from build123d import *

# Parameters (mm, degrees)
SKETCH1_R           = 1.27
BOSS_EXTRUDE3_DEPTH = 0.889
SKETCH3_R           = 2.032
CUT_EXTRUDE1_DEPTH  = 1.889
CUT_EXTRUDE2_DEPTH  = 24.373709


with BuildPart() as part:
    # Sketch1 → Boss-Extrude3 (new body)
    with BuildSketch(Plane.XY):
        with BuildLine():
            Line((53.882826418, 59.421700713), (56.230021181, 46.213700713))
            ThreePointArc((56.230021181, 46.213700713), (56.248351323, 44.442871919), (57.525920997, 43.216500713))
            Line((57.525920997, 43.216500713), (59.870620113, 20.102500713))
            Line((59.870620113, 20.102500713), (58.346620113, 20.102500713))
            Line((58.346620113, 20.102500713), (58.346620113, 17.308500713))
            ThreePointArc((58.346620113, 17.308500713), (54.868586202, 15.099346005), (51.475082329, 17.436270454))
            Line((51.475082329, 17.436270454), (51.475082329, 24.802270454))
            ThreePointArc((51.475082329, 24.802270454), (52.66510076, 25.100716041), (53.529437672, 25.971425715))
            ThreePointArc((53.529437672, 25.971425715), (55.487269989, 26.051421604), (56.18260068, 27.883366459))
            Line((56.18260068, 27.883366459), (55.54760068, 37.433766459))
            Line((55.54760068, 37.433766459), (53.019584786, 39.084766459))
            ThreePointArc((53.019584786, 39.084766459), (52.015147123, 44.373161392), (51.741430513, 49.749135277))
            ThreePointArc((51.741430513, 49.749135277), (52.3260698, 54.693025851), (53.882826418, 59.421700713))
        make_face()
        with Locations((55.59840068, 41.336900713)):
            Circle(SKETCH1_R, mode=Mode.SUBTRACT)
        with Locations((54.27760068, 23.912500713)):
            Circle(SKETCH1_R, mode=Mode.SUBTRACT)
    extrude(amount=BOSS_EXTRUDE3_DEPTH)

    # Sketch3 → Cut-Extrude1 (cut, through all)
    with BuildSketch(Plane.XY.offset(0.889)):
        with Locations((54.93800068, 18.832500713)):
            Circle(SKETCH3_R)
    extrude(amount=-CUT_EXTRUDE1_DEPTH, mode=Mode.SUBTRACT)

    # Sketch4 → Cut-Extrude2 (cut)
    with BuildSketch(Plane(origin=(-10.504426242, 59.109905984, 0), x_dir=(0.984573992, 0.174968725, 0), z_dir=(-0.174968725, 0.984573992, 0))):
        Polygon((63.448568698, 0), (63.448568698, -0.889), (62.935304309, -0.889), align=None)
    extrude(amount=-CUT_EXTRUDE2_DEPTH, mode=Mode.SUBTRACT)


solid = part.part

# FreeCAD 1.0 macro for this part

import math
import FreeCAD as App
import Part
import Sketcher

V = App.Vector
Q = App.Units.Quantity

doc = App.newDocument("Part")
body = doc.addObject("PartDesign::Body", "Body")

# Sketch on XY plane
sketch1 = doc.addObject("Sketcher::SketchObject", "Sketch")
body.addObject(sketch1)
sketch1.AttachmentSupport = (doc.XY_Plane, [""])
sketch1.MapMode = "FlatFace"
sketch1.addGeometry(Part.LineSegment(V(56.230021, 46.213701, 0), V(53.882826, 59.421701, 0)), False)
sketch1.addGeometry(Part.ArcOfCircle(Part.Circle(V(76.629601, 49.312501, 0), V(0, 0, 1), 24.892), math.radians(156.038515), math.radians(178.994914)), False)
sketch1.addGeometry(Part.ArcOfCircle(Part.Circle(V(91.107601, 49.058501, 0), V(0, 0, 1), 39.372228), math.radians(178.994914), math.radians(194.674002)), False)
sketch1.addGeometry(Part.LineSegment(V(53.019585, 39.084766, 0), V(55.547601, 37.433766, 0)), False)
sketch1.addGeometry(Part.LineSegment(V(55.547601, 37.433766, 0), V(56.182601, 27.883366, 0)), False)
sketch1.addGeometry(Part.ArcOfCircle(Part.Circle(V(54.447781, 27.493901, 0), V(0, 0, 1), 1.778), math.radians(-121.097996), math.radians(12.653071)), False)
sketch1.addGeometry(Part.ArcOfCircle(Part.Circle(V(51.534401, 27.087501, 0), V(0, 0, 1), 2.286), math.radians(-91.486908), math.radians(-29.223771)), False)
sketch1.addGeometry(Part.LineSegment(V(51.475082, 24.80227, 0), V(51.475082, 17.43627, 0)), False)
sketch1.addGeometry(Part.ArcOfCircle(Part.Circle(V(54.938001, 18.832501, 0), V(0, 0, 1), 3.7338), math.radians(-158.04097), math.radians(-24.089506)), False)
sketch1.addGeometry(Part.LineSegment(V(58.34662, 17.308501, 0), V(58.34662, 20.102501, 0)), False)
sketch1.addGeometry(Part.LineSegment(V(58.34662, 20.102501, 0), V(59.87062, 20.102501, 0)), False)
sketch1.addGeometry(Part.LineSegment(V(59.87062, 20.102501, 0), V(57.525921, 43.216501, 0)), False)
sketch1.addGeometry(Part.ArcOfCircle(Part.Circle(V(58.34662, 45.350101, 0), V(0, 0, 1), 2.286), math.radians(157.803899), math.radians(248.96053)), False)
sketch1.addGeometry(Part.Circle(V(54.277601, 23.912501, 0), V(0, 0, 1), 1.27), False)
sketch1.addGeometry(Part.Circle(V(55.598401, 41.336901, 0), V(0, 0, 1), 1.27), False)
sketch1.addConstraint(Sketcher.Constraint("Coincident", 0, 2, 1, 1))
sketch1.addConstraint(Sketcher.Constraint("Tangent", 1, 2, 2, 1))
sketch1.addConstraint(Sketcher.Constraint("Coincident", 2, 2, 3, 1))
sketch1.addConstraint(Sketcher.Constraint("Coincident", 3, 2, 4, 1))
sketch1.addConstraint(Sketcher.Constraint("Coincident", 4, 2, 5, 2))
sketch1.addConstraint(Sketcher.Constraint("Coincident", 5, 1, 6, 2))
sketch1.addConstraint(Sketcher.Constraint("Coincident", 6, 1, 7, 1))
sketch1.addConstraint(Sketcher.Constraint("Coincident", 7, 2, 8, 1))
sketch1.addConstraint(Sketcher.Constraint("Coincident", 8, 2, 9, 1))
sketch1.addConstraint(Sketcher.Constraint("Coincident", 9, 2, 10, 1))
sketch1.addConstraint(Sketcher.Constraint("Coincident", 10, 2, 11, 1))
sketch1.addConstraint(Sketcher.Constraint("Coincident", 11, 2, 12, 2))
sketch1.addConstraint(Sketcher.Constraint("Coincident", 12, 1, 0, 1))
sketch1.addConstraint(Sketcher.Constraint("Vertical", 7))
sketch1.addConstraint(Sketcher.Constraint("Vertical", 9))
sketch1.addConstraint(Sketcher.Constraint("Horizontal", 10))
sketch1.addConstraint(Sketcher.Constraint("Equal", 6, 12))
sketch1.addConstraint(Sketcher.Constraint("Equal", 13, 14))
sketch1.addConstraint(Sketcher.Constraint("Vertical", 12, 3, 8, 2))
sketch1.addConstraint(Sketcher.Constraint("Diameter", 13, Q("0.1 in")))
sketch1.addConstraint(Sketcher.Constraint("Radius", 1, Q("0.98 in")))
sketch1.addConstraint(Sketcher.Constraint("Radius", 5, Q("0.07 in")))
sketch1.addConstraint(Sketcher.Constraint("Radius", 6, Q("0.09 in")))
sketch1.addConstraint(Sketcher.Constraint("Radius", 8, Q("0.147 in")))
sketch1.addConstraint(Sketcher.Constraint("DistanceY", 13, 3, 1, 3, Q("1 in")))
sketch1.addConstraint(Sketcher.Constraint("DistanceX", 10, 1, 10, 2, Q("0.06 in")))
sketch1.addConstraint(Sketcher.Constraint("DistanceY", 7, 2, 7, 1, Q("0.29 in")))
sketch1.addConstraint(Sketcher.Constraint("DistanceY", 9, 1, 9, 2, Q("0.11 in")))
sketch1.addConstraint(Sketcher.Constraint("DistanceY", 8, 3, 1, 3, Q("1.2 in")))
sketch1.addConstraint(Sketcher.Constraint("DistanceX", 1, 3, 2, 3, Q("0.57 in")))
sketch1.addConstraint(Sketcher.Constraint("DistanceY", 2, 3, 1, 3, Q("0.01 in")))
sketch1.addConstraint(Sketcher.Constraint("DistanceX", 13, 3, 1, 3, Q("0.88 in")))
sketch1.addConstraint(Sketcher.Constraint("DistanceX", 6, 3, 14, 3, Q("0.16 in")))
sketch1.addConstraint(Sketcher.Constraint("DistanceY", 8, 2, 8, 3, Q("0.06 in")))
sketch1.addConstraint(Sketcher.Constraint("DistanceY", 5, 3, 1, 3, Q("0.859 in")))
sketch1.addConstraint(Sketcher.Constraint("DistanceY", 6, 3, 5, 3, Q("0.016 in")))
sketch1.addConstraint(Sketcher.Constraint("DistanceX", 6, 3, 1, 3, Q("0.988 in")))
sketch1.addConstraint(Sketcher.Constraint("DistanceX", 6, 3, 8, 3, Q("0.134 in")))
sketch1.addConstraint(Sketcher.Constraint("DistanceY", 5, 3, 12, 3, Q("0.703 in")))
sketch1.addConstraint(Sketcher.Constraint("DistanceY", 14, 3, 12, 3, Q("0.158 in")))
sketch1.addConstraint(Sketcher.Constraint("DistanceY", 12, 3, 0, 2, Q("0.554 in")))
sketch1.addConstraint(Sketcher.Constraint("DistanceY", 3, 2, 2, 2, Q("0.065 in")))
sketch1.addConstraint(Sketcher.Constraint("DistanceX", 3, 2, 14, 3, Q("0.002 in")))
sketch1.addConstraint(Sketcher.Constraint("DistanceX", 13, 3, 4, 2, Q("0.075 in")))
sketch1.addConstraint(Sketcher.Constraint("DistanceY", 4, 2, 3, 2, Q("0.376 in")))
sketch1.addConstraint(Sketcher.Constraint("DistanceY", 11, 2, 12, 3, Q("0.084 in")))
sketch1.addConstraint(Sketcher.Constraint("DistanceY", 12, 3, 12, 1, Q("0.034 in")))
sketch1.addConstraint(Sketcher.Constraint("DistanceX", -1, 1, 11, 2, Q("2.2648 in")))
sketch1.addConstraint(Sketcher.Constraint("DistanceX", 5, 3, 1, 3, Q("0.8733 in")))
sketch1.addConstraint(Sketcher.Constraint("DistanceY", -1, 1, 1, 3, Q("49.312501 mm")))
pad1 = doc.addObject("PartDesign::Pad", "Pad")
body.addObject(pad1)
pad1.Profile = sketch1
pad1.Length = Q("0.035 in")

# Sketch on XY plane
sketch2 = doc.addObject("Sketcher::SketchObject", "Sketch001")
body.addObject(sketch2)
sketch2.AttachmentSupport = (doc.XY_Plane, [""])
sketch2.MapMode = "FlatFace"
sketch2.AttachmentOffset = App.Placement(V(0, 0, 0.035 * 25.4), App.Rotation())
sketch2.addGeometry(Part.Circle(V(54.938001, 18.832501, 0), V(0, 0, 1), 2.032), False)
sketch2.addConstraint(Sketcher.Constraint("Diameter", 0, Q("0.16 in")))
sketch2.addConstraint(Sketcher.Constraint("DistanceX", -1, 1, 0, 3, Q("54.938001 mm")))
sketch2.addConstraint(Sketcher.Constraint("DistanceY", -1, 1, 0, 3, Q("18.832501 mm")))
pocket1 = doc.addObject("PartDesign::Pocket", "Pocket")
body.addObject(pocket1)
pocket1.Profile = sketch2
pocket1.Type = "ThroughAll"

# Sketch on an angled plane
sketch3 = doc.addObject("Sketcher::SketchObject", "Sketch002")
body.addObject(sketch3)
sketch3.Placement = App.Placement(V(-10.504426, 59.109906, 0), App.Rotation(V(0.984573992, 0.174968725, 0), V(0, 0, -1), V(-0.174968725, 0.984573992, 0), "ZXY"))
sketch3.addGeometry(Part.LineSegment(V(63.448569, -0.889, 0), V(63.448569, 0, 0)), False)
sketch3.addGeometry(Part.LineSegment(V(63.448569, 0, 0), V(62.935304, -0.889, 0)), False)
sketch3.addGeometry(Part.LineSegment(V(62.935304, -0.889, 0), V(63.448569, -0.889, 0)), False)
sketch3.addConstraint(Sketcher.Constraint("Coincident", 0, 2, 1, 1))
sketch3.addConstraint(Sketcher.Constraint("Coincident", 1, 2, 2, 1))
sketch3.addConstraint(Sketcher.Constraint("Coincident", 2, 2, 0, 1))
sketch3.addConstraint(Sketcher.Constraint("Vertical", 0))
sketch3.addConstraint(Sketcher.Constraint("Horizontal", 2))
sketch3.addConstraint(Sketcher.Constraint("PointOnObject", 0, 2, -1))
sketch3.addConstraint(Sketcher.Constraint("Angle", 1, Q("-120 deg")))
sketch3.addConstraint(Sketcher.Constraint("DistanceY", 0, 1, 0, 2, Q("0.035 in")))
sketch3.addConstraint(Sketcher.Constraint("DistanceX", -1, 1, 0, 2, Q("63.448569 mm")))
pocket2 = doc.addObject("PartDesign::Pocket", "Pocket001")
body.addObject(pocket2)
pocket2.Profile = sketch3
pocket2.Length = 24.373709

doc.recompute()
